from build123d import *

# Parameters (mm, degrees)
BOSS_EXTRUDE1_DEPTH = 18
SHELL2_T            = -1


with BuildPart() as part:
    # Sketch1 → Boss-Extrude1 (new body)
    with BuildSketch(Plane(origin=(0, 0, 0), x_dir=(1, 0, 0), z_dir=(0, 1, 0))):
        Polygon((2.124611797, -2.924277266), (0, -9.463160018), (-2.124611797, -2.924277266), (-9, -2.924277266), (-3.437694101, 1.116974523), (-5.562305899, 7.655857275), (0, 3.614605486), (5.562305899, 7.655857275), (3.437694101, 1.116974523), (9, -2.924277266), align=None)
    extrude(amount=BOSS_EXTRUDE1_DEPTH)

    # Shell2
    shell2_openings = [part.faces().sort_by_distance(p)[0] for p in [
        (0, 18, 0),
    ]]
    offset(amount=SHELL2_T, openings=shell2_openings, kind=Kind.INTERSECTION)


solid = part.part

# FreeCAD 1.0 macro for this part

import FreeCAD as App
import Part
import Sketcher
Q = App.Units.Quantity


def faces_at(feature, points):
    """Names of the faces that lie closest to the given points."""
    faces = feature.Shape.Faces
    near = lambda p: min(range(len(faces)), key=lambda i: faces[i].distToShape(Part.Vertex(*p))[0])
    return sorted({f"Face{near(p) + 1}" for p in points})

doc = App.newDocument("Part")
body = doc.addObject("PartDesign::Body", "Body")

sketch1 = body.newObject("Sketcher::SketchObject", "Sketch")
sketch1.AttachmentSupport = (doc.getObject("XZ_Plane"), [""])
sketch1.MapMode = "FlatFace"
sketch1.addGeometry(Part.LineSegment(App.Vector(0, 9, 0), App.Vector(2, 3, 0)), False)
sketch1.addGeometry(Part.LineSegment(App.Vector(2, 3, 0), App.Vector(9, 3, 0)), False)
sketch1.addGeometry(Part.LineSegment(App.Vector(9, 3, 0), App.Vector(3, -1, 0)), False)
sketch1.addGeometry(Part.LineSegment(App.Vector(3, -1, 0), App.Vector(6, -8, 0)), False)
sketch1.addGeometry(Part.LineSegment(App.Vector(6, -8, 0), App.Vector(0, -4, 0)), False)
sketch1.addGeometry(Part.LineSegment(App.Vector(0, -4, 0), App.Vector(-6, -8, 0)), False)
sketch1.addGeometry(Part.LineSegment(App.Vector(-6, -8, 0), App.Vector(-3, -1, 0)), False)
sketch1.addGeometry(Part.LineSegment(App.Vector(-3, -1, 0), App.Vector(-9, 3, 0)), False)
sketch1.addGeometry(Part.LineSegment(App.Vector(-9, 3, 0), App.Vector(-2, 3, 0)), False)
sketch1.addGeometry(Part.LineSegment(App.Vector(-2, 3, 0), App.Vector(0, 9, 0)), False)
sketch1.addConstraint(Sketcher.Constraint("Coincident", 0, 2, 1, 1))
sketch1.addConstraint(Sketcher.Constraint("Coincident", 1, 2, 2, 1))
sketch1.addConstraint(Sketcher.Constraint("Coincident", 2, 2, 3, 1))
sketch1.addConstraint(Sketcher.Constraint("Coincident", 3, 2, 4, 1))
sketch1.addConstraint(Sketcher.Constraint("Coincident", 4, 2, 5, 1))
sketch1.addConstraint(Sketcher.Constraint("Coincident", 5, 2, 6, 1))
sketch1.addConstraint(Sketcher.Constraint("Coincident", 6, 2, 7, 1))
sketch1.addConstraint(Sketcher.Constraint("Coincident", 7, 2, 8, 1))
sketch1.addConstraint(Sketcher.Constraint("Coincident", 8, 2, 9, 1))
sketch1.addConstraint(Sketcher.Constraint("Coincident", 9, 2, 0, 1))
sketch1.addConstraint(Sketcher.Constraint("Horizontal", 1))
sketch1.addConstraint(Sketcher.Constraint("Horizontal", 8))
sketch1.addConstraint(Sketcher.Constraint("Symmetric", 3, 2, 5, 2, -2))
sketch1.addConstraint(Sketcher.Constraint("Symmetric", 2, 2, 6, 2, -2))
sketch1.addConstraint(Sketcher.Constraint("Symmetric", 1, 2, 7, 2, -2))
sketch1.addConstraint(Sketcher.Constraint("PointOnObject", 4, 2, -2))
sketch1.addConstraint(Sketcher.Constraint("PointOnObject", 9, 2, -2))
sketch1.addConstraint(Sketcher.Constraint("Parallel", 0, 3))
sketch1.addConstraint(Sketcher.Constraint("Parallel", 2, 5))
sketch1.addConstraint(Sketcher.Constraint("Parallel", 6, 9))
sketch1.addConstraint(Sketcher.Constraint("Equal", 0, 2))
sketch1.addConstraint(Sketcher.Constraint("Equal", 2, 3))
sketch1.addConstraint(Sketcher.Constraint("Equal", 3, 4))
sketch1.addConstraint(Sketcher.Constraint("Angle", 0, Q("-72 deg")))
sketch1.addConstraint(Sketcher.Constraint("Angle", 2, Q("-144 deg")))
sketch1.addConstraint(Sketcher.Constraint("DistanceX", -1, 1, 1, 2, 9.0))
sketch1.addConstraint(Sketcher.Constraint("DistanceY", -1, 1, 9, 2, 9.46316))
pad1 = body.newObject("PartDesign::Pad", "Pad")
pad1.Profile = sketch1
pad1.Length = 18
pad1.Reversed = True
doc.recompute()

thickness = body.newObject("PartDesign::Thickness", "Thickness")
thickness.Base = (pad1, faces_at(pad1, [(0, 18, 0.904)]))
thickness.Value = 1
thickness.Reversed = True
thickness.Join = "Intersection"

doc.recompute()
